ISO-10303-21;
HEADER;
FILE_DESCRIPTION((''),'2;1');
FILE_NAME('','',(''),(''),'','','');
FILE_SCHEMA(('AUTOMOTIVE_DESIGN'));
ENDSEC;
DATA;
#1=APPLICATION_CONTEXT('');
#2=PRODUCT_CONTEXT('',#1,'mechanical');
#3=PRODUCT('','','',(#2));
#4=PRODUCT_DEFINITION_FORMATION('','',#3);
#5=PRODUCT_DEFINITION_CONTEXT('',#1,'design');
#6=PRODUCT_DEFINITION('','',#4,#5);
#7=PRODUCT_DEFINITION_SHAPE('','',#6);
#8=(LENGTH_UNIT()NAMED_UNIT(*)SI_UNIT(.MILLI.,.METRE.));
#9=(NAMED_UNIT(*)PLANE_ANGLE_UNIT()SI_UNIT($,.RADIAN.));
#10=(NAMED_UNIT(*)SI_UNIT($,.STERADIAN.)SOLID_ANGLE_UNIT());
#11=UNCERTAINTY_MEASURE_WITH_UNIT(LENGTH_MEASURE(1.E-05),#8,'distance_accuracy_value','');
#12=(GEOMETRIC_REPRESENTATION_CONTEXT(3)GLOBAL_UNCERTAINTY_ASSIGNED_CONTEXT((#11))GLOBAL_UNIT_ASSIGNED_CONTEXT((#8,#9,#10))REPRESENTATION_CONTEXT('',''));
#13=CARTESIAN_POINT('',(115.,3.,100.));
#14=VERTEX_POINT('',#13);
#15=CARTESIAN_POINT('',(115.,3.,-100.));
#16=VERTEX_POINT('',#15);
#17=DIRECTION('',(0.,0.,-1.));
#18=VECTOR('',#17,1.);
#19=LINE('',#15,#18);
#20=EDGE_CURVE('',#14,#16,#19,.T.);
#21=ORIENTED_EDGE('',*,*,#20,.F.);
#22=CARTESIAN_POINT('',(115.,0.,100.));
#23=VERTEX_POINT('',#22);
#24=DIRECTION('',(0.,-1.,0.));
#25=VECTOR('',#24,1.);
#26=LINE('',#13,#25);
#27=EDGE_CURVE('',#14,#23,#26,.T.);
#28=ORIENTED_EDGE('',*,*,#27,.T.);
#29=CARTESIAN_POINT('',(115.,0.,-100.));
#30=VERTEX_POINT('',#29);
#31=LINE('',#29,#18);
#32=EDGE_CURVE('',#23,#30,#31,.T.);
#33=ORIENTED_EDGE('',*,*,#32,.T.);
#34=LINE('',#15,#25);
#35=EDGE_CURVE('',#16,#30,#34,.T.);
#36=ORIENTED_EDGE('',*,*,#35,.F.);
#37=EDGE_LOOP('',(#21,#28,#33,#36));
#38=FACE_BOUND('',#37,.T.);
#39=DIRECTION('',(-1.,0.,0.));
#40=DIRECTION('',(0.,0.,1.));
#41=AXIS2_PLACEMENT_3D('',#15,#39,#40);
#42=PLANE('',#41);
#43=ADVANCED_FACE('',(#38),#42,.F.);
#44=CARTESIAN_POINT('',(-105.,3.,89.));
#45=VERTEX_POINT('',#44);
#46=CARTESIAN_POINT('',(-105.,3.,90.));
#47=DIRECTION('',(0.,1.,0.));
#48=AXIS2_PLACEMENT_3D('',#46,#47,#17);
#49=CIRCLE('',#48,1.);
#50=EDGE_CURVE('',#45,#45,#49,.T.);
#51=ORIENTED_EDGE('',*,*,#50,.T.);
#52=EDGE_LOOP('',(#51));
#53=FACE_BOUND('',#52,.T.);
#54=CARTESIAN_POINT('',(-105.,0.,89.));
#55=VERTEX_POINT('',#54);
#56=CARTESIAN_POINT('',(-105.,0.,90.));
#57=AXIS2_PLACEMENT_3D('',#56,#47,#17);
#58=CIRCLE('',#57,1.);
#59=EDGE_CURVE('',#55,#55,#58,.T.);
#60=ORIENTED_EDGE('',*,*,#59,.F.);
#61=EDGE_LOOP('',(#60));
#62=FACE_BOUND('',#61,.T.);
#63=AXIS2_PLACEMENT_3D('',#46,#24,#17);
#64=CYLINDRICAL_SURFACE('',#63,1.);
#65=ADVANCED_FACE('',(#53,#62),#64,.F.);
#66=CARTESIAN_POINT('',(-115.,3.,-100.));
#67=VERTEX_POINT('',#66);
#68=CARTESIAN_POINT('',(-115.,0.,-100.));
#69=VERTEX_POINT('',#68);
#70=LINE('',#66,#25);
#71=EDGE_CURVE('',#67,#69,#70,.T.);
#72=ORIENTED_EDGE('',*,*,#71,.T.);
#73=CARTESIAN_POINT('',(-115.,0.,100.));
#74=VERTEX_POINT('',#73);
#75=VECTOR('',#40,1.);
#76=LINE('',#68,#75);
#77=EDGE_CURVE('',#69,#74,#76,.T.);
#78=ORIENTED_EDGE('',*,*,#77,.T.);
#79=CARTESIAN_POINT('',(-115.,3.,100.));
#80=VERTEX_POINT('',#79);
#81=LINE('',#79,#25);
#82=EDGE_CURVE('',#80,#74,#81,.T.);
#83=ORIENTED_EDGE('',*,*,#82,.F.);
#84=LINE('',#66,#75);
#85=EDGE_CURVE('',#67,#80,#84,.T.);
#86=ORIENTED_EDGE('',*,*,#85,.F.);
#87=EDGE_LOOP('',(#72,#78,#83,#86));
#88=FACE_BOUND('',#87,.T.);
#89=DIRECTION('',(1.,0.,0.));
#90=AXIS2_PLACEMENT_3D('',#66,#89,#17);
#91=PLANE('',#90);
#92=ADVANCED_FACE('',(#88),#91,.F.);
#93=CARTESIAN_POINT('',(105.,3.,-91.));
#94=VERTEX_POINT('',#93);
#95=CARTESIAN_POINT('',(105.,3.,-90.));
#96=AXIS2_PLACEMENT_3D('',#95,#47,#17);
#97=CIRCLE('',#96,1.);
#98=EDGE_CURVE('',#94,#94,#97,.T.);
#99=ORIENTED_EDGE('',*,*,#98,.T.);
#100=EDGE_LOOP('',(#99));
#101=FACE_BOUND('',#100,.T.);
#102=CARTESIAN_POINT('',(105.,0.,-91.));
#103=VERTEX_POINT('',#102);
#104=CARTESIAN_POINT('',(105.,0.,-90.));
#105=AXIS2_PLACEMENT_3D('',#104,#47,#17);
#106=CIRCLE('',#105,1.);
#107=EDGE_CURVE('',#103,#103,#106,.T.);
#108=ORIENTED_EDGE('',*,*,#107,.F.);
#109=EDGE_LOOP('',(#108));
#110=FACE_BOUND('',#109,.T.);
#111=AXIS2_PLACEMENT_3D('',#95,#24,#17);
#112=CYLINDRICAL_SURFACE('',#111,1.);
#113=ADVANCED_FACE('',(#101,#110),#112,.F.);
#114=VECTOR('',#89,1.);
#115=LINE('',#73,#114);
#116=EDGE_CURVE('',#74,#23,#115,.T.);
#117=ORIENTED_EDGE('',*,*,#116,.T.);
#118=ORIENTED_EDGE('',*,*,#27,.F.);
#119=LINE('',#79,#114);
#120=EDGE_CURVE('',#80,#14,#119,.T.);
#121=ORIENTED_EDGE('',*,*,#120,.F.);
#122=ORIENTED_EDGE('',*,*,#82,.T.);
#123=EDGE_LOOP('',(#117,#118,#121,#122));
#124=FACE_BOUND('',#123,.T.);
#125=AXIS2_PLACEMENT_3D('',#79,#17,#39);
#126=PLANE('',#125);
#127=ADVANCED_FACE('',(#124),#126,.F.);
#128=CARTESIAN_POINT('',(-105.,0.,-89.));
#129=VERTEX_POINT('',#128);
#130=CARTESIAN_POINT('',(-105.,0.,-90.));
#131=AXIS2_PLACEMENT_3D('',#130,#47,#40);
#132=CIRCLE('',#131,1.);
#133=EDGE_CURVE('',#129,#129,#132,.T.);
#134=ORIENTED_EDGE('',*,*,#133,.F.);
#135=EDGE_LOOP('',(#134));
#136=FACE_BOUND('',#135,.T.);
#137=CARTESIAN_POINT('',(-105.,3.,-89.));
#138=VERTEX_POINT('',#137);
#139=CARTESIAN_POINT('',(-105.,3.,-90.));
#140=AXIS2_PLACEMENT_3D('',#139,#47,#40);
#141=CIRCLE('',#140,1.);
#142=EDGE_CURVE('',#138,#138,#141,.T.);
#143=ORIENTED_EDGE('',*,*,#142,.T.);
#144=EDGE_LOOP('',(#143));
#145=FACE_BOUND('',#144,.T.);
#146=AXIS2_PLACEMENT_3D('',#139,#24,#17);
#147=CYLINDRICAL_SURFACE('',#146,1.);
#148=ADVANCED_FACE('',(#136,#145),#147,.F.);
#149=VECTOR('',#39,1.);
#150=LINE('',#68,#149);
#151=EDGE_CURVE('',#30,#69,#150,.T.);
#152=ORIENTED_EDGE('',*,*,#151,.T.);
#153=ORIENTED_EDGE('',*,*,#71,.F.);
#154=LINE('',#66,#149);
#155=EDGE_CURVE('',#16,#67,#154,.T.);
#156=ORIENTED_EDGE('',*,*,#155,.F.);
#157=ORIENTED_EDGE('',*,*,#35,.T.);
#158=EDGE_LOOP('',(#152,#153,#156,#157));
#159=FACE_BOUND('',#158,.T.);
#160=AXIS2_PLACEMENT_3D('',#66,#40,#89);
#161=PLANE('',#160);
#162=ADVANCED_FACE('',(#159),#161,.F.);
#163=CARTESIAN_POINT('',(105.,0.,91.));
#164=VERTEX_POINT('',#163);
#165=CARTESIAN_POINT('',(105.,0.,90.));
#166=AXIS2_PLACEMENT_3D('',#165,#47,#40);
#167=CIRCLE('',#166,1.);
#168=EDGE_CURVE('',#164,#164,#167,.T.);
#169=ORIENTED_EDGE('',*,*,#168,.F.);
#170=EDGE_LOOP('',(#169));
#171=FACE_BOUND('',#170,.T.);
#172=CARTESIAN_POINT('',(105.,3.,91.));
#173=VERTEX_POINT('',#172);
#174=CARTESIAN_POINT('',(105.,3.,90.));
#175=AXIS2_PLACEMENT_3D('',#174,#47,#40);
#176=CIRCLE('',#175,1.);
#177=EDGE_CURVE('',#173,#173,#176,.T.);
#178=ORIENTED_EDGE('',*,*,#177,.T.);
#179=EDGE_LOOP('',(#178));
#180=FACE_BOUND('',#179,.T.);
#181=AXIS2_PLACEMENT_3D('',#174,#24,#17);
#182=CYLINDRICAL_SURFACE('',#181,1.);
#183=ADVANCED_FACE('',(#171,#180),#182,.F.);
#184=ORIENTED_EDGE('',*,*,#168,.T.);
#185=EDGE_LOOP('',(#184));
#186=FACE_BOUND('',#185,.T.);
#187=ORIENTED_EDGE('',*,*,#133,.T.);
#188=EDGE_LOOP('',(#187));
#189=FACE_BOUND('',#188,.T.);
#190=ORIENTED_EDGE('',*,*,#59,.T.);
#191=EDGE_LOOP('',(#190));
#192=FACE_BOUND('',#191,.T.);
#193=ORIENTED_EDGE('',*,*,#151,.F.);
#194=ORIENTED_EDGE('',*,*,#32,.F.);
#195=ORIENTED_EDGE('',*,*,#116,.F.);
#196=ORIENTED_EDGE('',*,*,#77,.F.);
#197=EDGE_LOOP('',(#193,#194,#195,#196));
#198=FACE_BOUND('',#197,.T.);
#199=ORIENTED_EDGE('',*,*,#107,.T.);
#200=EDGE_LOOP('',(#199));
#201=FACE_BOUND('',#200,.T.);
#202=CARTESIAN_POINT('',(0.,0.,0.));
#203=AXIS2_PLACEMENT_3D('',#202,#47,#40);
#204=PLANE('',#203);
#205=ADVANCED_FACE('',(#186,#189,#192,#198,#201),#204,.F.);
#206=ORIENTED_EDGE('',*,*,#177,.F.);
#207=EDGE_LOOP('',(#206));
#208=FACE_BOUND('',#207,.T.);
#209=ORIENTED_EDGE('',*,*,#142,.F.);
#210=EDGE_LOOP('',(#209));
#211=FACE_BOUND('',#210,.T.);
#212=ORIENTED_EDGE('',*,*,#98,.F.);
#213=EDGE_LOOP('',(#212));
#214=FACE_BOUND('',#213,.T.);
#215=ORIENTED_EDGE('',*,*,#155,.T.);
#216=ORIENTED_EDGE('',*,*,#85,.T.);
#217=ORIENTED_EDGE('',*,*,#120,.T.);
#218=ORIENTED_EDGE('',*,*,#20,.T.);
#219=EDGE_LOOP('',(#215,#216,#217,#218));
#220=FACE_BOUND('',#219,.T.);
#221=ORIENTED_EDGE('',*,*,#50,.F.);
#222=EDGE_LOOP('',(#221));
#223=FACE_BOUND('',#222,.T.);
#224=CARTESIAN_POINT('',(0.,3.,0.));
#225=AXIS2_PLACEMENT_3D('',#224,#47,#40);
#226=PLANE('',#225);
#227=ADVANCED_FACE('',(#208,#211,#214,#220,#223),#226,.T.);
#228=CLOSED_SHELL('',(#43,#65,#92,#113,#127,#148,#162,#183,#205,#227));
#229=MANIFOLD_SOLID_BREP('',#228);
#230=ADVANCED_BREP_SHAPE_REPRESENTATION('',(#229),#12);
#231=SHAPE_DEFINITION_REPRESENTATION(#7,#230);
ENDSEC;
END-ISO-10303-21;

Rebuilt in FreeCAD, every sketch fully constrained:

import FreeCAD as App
import Part
import Sketcher
from FreeCAD import Vector
Q = App.Units.Quantity


def add_polygon(sketch, points):
    """Adds a closed chain of lines whose ends are joined by coincident constraints."""
    first, n = sketch.GeometryCount, len(points)
    for a, b in zip(points, points[1:] + points[:1]):
        sketch.addGeometry(Part.LineSegment(App.Vector(*a, 0), App.Vector(*b, 0)), False)
    for i in range(n):
        sketch.addConstraint(Sketcher.Constraint("Coincident", first + i, 2, first + (i + 1) % n, 1))

doc = App.newDocument("Part")
body = doc.addObject("PartDesign::Body", "Body")

sketch1 = body.newObject("Sketcher::SketchObject", "Sketch")
sketch1.AttachmentSupport = (doc.getObject("XZ_Plane"), [""])
sketch1.MapMode = "FlatFace"
add_polygon(sketch1, [(-115, -100), (-115, 100), (115, 100), (115, -100)])
sketch1.addGeometry(Part.Circle(Vector(-105, 90, 0), Vector(0, 0, 1), 1), False)
sketch1.addGeometry(Part.Circle(Vector(105, 90, 0), Vector(0, 0, 1), 1), False)
sketch1.addGeometry(Part.Circle(Vector(-105, -90, 0), Vector(0, 0, 1), 1), False)
sketch1.addGeometry(Part.Circle(Vector(105, -90, 0), Vector(0, 0, 1), 1), False)
sketch1.addConstraint(Sketcher.Constraint("Vertical", 0))
sketch1.addConstraint(Sketcher.Constraint("Horizontal", 1))
sketch1.addConstraint(Sketcher.Constraint("Vertical", 2))
sketch1.addConstraint(Sketcher.Constraint("Horizontal", 3))
sketch1.addConstraint(Sketcher.Constraint("Equal", 4, 5))
sketch1.addConstraint(Sketcher.Constraint("Equal", 5, 6))
sketch1.addConstraint(Sketcher.Constraint("Equal", 6, 7))
sketch1.addConstraint(Sketcher.Constraint("Symmetric", 5, 3, 6, 3, -1, 1))
sketch1.addConstraint(Sketcher.Constraint("Symmetric", 4, 3, 7, 3, -1, 1))
sketch1.addConstraint(Sketcher.Constraint("Symmetric", 0, 2, 2, 2, -1, 1))
sketch1.addConstraint(Sketcher.Constraint("Symmetric", 4, 3, 5, 3, -2))
sketch1.addConstraint(Sketcher.Constraint("Diameter", 4, Q("2 mm")))
sketch1.addConstraint(Sketcher.Constraint("DistanceX", 1, 1, 1, 2, Q("230 mm")))
sketch1.addConstraint(Sketcher.Constraint("DistanceY", 0, 1, 0, 2, Q("200 mm")))
sketch1.addConstraint(Sketcher.Constraint("DistanceX", 4, 3, -1, 1, Q("105 mm")))
sketch1.addConstraint(Sketcher.Constraint("DistanceY", -1, 1, 4, 3, Q("90 mm")))
pad1 = body.newObject("PartDesign::Pad", "Pad")
pad1.Profile = sketch1
pad1.Length = 3
pad1.Reversed = True

doc.recompute()
